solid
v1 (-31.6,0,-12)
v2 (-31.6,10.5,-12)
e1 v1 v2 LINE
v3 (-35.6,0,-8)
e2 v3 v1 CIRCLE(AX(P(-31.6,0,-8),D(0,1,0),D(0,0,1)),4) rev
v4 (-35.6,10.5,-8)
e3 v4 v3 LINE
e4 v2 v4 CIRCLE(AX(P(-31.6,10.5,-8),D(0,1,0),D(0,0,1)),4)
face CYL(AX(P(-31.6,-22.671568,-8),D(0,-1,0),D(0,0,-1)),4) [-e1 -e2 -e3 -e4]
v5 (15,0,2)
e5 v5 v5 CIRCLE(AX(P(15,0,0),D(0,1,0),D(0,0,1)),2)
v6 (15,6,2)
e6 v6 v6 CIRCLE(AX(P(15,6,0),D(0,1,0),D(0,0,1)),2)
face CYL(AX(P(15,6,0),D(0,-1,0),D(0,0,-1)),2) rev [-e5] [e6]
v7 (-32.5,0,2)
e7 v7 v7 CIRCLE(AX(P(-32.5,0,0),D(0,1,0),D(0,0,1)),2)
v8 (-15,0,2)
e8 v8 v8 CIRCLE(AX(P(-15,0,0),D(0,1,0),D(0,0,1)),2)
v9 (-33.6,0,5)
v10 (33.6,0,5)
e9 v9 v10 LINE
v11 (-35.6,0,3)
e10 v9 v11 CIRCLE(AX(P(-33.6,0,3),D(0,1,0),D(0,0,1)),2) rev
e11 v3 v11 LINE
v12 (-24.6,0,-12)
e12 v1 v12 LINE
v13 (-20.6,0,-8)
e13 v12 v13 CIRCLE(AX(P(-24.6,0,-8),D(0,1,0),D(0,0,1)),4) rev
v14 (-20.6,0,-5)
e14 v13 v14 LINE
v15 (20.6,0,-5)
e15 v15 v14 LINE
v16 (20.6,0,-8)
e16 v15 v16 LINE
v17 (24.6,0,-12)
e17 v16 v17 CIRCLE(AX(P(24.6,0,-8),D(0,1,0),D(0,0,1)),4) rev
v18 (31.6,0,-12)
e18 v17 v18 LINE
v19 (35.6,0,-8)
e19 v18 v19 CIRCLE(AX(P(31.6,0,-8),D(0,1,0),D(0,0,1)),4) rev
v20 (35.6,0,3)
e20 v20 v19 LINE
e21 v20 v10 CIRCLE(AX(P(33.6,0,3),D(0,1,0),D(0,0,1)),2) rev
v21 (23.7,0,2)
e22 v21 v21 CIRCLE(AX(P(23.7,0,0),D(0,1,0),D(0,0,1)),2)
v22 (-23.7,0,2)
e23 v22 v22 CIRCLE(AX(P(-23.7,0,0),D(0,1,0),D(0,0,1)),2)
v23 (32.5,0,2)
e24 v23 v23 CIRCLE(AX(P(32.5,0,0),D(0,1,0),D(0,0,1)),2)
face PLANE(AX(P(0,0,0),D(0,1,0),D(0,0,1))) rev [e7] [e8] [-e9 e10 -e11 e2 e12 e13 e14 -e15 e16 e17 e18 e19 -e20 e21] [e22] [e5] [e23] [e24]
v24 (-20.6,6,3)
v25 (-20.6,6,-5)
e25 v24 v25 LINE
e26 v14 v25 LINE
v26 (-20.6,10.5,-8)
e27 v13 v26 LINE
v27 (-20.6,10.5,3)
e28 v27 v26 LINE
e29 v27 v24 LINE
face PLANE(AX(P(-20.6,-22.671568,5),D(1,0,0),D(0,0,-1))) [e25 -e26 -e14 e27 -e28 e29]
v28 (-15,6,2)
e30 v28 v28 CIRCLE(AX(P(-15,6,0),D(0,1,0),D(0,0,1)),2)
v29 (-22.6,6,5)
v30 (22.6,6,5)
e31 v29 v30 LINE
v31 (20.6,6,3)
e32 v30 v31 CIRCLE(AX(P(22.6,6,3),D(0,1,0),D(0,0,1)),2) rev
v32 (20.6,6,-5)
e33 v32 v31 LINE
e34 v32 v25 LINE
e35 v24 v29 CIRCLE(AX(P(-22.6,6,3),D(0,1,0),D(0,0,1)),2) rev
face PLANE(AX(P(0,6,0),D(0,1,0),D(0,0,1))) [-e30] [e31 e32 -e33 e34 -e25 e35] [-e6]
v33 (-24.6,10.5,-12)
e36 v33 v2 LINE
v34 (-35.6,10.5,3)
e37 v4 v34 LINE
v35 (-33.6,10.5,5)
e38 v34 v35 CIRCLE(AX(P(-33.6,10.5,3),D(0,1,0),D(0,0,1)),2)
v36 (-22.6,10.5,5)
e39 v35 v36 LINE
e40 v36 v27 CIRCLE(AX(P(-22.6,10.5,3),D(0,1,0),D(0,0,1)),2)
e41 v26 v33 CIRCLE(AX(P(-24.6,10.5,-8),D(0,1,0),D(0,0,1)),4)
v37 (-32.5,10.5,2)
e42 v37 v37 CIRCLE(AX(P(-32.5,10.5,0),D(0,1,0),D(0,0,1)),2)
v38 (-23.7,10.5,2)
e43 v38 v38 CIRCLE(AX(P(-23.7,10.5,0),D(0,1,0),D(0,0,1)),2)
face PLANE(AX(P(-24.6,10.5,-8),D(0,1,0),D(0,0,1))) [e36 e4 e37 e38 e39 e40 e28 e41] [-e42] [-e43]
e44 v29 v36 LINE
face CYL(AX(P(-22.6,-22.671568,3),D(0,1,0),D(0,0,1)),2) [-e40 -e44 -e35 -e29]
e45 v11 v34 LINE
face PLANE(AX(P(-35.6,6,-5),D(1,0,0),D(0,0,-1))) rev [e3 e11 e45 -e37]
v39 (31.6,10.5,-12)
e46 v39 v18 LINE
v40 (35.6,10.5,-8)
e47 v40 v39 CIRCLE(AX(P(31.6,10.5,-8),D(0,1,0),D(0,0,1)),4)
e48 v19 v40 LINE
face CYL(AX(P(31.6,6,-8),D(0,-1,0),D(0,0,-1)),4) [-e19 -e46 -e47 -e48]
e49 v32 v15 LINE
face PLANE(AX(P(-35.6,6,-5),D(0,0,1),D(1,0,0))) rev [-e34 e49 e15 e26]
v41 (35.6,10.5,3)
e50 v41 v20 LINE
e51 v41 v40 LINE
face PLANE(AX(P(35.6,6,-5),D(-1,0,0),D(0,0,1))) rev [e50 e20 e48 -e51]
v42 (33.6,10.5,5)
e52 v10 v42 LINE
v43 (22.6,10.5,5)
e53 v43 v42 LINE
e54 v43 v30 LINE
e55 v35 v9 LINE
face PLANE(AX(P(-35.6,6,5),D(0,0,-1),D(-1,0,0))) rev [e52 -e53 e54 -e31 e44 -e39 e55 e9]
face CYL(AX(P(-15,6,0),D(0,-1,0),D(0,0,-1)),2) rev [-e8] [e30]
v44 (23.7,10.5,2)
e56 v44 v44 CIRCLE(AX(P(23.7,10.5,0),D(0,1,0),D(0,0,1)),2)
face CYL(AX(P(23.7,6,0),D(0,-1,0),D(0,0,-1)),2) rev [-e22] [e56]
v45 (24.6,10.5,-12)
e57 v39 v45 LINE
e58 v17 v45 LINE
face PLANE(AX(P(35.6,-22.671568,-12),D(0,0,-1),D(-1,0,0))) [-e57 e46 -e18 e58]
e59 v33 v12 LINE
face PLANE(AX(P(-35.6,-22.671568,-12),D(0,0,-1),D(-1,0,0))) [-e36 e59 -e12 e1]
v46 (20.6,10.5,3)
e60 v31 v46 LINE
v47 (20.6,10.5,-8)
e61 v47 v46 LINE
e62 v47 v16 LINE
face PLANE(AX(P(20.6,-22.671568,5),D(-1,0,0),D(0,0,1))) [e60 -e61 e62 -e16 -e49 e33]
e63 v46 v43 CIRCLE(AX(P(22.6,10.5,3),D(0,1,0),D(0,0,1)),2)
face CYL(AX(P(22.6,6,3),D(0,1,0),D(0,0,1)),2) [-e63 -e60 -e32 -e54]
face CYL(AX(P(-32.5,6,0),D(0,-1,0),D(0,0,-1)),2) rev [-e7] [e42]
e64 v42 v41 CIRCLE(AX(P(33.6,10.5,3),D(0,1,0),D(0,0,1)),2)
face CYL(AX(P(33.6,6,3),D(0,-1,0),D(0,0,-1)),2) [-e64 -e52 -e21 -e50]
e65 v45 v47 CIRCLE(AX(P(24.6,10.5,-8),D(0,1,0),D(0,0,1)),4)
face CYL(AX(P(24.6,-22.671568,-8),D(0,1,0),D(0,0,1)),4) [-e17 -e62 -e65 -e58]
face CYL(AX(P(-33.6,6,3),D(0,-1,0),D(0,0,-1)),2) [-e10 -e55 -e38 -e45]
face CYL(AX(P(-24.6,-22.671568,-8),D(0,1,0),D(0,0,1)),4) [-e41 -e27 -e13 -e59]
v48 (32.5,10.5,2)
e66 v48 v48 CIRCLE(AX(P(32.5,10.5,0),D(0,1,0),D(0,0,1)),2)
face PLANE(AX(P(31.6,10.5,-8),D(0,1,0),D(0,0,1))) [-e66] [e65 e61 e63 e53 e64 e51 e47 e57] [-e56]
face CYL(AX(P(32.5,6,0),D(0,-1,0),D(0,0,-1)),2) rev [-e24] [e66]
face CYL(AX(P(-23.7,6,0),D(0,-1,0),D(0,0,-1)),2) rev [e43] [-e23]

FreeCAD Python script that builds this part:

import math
import FreeCAD as App
import Part
import Sketcher

V = App.Vector


def edges_at(feature, points):
    """Names of the edges that pass closest to the given points."""
    edges = feature.Shape.Edges
    near = lambda p: min(range(len(edges)), key=lambda i: edges[i].distToShape(Part.Vertex(*p))[0])
    return sorted({f"Edge{near(p) + 1}" for p in points})

doc = App.newDocument("Part")
body = doc.addObject("PartDesign::Body", "Body")

sketch1 = body.newObject("Sketcher::SketchObject", "Sketch")
sketch1.AttachmentSupport = (doc.getObject("XZ_Plane"), [""])
sketch1.MapMode = "FlatFace"
sketch1.addGeometry(Part.LineSegment(V(-35.6, -5, 0), V(-35.6, 5, 0)), False)
sketch1.addGeometry(Part.LineSegment(V(-35.6, 5, 0), V(35.6, 5, 0)), False)
sketch1.addGeometry(Part.LineSegment(V(35.6, 5, 0), V(35.6, -5, 0)), False)
sketch1.addGeometry(Part.LineSegment(V(35.6, -5, 0), V(-35.6, -5, 0)), False)
sketch1.addGeometry(Part.Circle(V(-32.5, 0, 0), V(0, 0, 1), 2), False)
sketch1.addGeometry(Part.Circle(V(-23.7, 0, 0), V(0, 0, 1), 2), False)
sketch1.addGeometry(Part.Circle(V(-15, 0, 0), V(0, 0, 1), 2), False)
sketch1.addGeometry(Part.Circle(V(15, 0, 0), V(0, 0, 1), 2), False)
sketch1.addGeometry(Part.Circle(V(23.7, 0, 0), V(0, 0, 1), 2), False)
sketch1.addGeometry(Part.Circle(V(32.5, 0, 0), V(0, 0, 1), 2), False)
sketch1.addConstraint(Sketcher.Constraint("Coincident", 0, 2, 1, 1))
sketch1.addConstraint(Sketcher.Constraint("Coincident", 1, 2, 2, 1))
sketch1.addConstraint(Sketcher.Constraint("Coincident", 2, 2, 3, 1))
sketch1.addConstraint(Sketcher.Constraint("Coincident", 3, 2, 0, 1))
sketch1.addConstraint(Sketcher.Constraint("Vertical", 0))
sketch1.addConstraint(Sketcher.Constraint("Horizontal", 1))
sketch1.addConstraint(Sketcher.Constraint("Vertical", 2))
sketch1.addConstraint(Sketcher.Constraint("Horizontal", 3))
sketch1.addConstraint(Sketcher.Constraint("Equal", 4, 5))
sketch1.addConstraint(Sketcher.Constraint("Equal", 5, 6))
sketch1.addConstraint(Sketcher.Constraint("Equal", 6, 7))
sketch1.addConstraint(Sketcher.Constraint("Equal", 7, 8))
sketch1.addConstraint(Sketcher.Constraint("Equal", 8, 9))
sketch1.addConstraint(Sketcher.Constraint("Symmetric", 6, 3, 7, 3, -1, 1))
sketch1.addConstraint(Sketcher.Constraint("Symmetric", 5, 3, 8, 3, -1, 1))
sketch1.addConstraint(Sketcher.Constraint("Symmetric", 4, 3, 9, 3, -1, 1))
sketch1.addConstraint(Sketcher.Constraint("Symmetric", 0, 2, 2, 2, -1, 1))
sketch1.addConstraint(Sketcher.Constraint("PointOnObject", 4, 3, -1))
sketch1.addConstraint(Sketcher.Constraint("PointOnObject", 5, 3, -1))
sketch1.addConstraint(Sketcher.Constraint("PointOnObject", 6, 3, -1))
sketch1.addConstraint(Sketcher.Constraint("Diameter", 4, 4.0))
sketch1.addConstraint(Sketcher.Constraint("DistanceY", 0, 1, 0, 2, 10.0))
sketch1.addConstraint(Sketcher.Constraint("DistanceX", 1, 1, 1, 2, 71.2))
sketch1.addConstraint(Sketcher.Constraint("DistanceX", 6, 3, -1, 1, 15.0))
sketch1.addConstraint(Sketcher.Constraint("DistanceX", 4, 3, 9, 3, 65.0))
sketch1.addConstraint(Sketcher.Constraint("DistanceX", 5, 3, -1, 1, 23.7))
pad1 = body.newObject("PartDesign::Pad", "Pad")
pad1.Profile = sketch1
pad1.Length = 6
pad1.Reversed = True

sketch2 = body.newObject("Sketcher::SketchObject", "Sketch001")
sketch2.AttachmentSupport = (doc.getObject("XZ_Plane"), [""])
sketch2.MapMode = "FlatFace"
sketch2.addGeometry(Part.LineSegment(V(-35.6, -12, 0), V(-35.6, 5, 0)), False)
sketch2.addGeometry(Part.LineSegment(V(-35.6, 5, 0), V(-20.6, 5, 0)), False)
sketch2.addGeometry(Part.LineSegment(V(-20.6, 5, 0), V(-20.6, -12, 0)), False)
sketch2.addGeometry(Part.LineSegment(V(-20.6, -12, 0), V(-35.6, -12, 0)), False)
sketch2.addGeometry(Part.Circle(V(-32.5, 0, 0), V(0, 0, 1), 2), False)
sketch2.addGeometry(Part.Circle(V(-23.7, 0, 0), V(0, 0, 1), 2), False)
sketch2.addGeometry(Part.LineSegment(V(20.6, -12, 0), V(20.6, 5, 0)), False)
sketch2.addGeometry(Part.LineSegment(V(20.6, 5, 0), V(35.6, 5, 0)), False)
sketch2.addGeometry(Part.LineSegment(V(35.6, 5, 0), V(35.6, -12, 0)), False)
sketch2.addGeometry(Part.LineSegment(V(35.6, -12, 0), V(20.6, -12, 0)), False)
sketch2.addGeometry(Part.Circle(V(23.7, 0, 0), V(0, 0, 1), 2), False)
sketch2.addGeometry(Part.Circle(V(32.5, 0, 0), V(0, 0, 1), 2), False)
sketch2.addConstraint(Sketcher.Constraint("Coincident", 0, 2, 1, 1))
sketch2.addConstraint(Sketcher.Constraint("Coincident", 1, 2, 2, 1))
sketch2.addConstraint(Sketcher.Constraint("Coincident", 2, 2, 3, 1))
sketch2.addConstraint(Sketcher.Constraint("Coincident", 3, 2, 0, 1))
sketch2.addConstraint(Sketcher.Constraint("Coincident", 6, 2, 7, 1))
sketch2.addConstraint(Sketcher.Constraint("Coincident", 7, 2, 8, 1))
sketch2.addConstraint(Sketcher.Constraint("Coincident", 8, 2, 9, 1))
sketch2.addConstraint(Sketcher.Constraint("Coincident", 9, 2, 6, 1))
sketch2.addConstraint(Sketcher.Constraint("Vertical", 0))
sketch2.addConstraint(Sketcher.Constraint("Horizontal", 1))
sketch2.addConstraint(Sketcher.Constraint("Vertical", 2))
sketch2.addConstraint(Sketcher.Constraint("Horizontal", 3))
sketch2.addConstraint(Sketcher.Constraint("Vertical", 6))
sketch2.addConstraint(Sketcher.Constraint("Horizontal", 7))
sketch2.addConstraint(Sketcher.Constraint("Vertical", 8))
sketch2.addConstraint(Sketcher.Constraint("Horizontal", 9))
sketch2.addConstraint(Sketcher.Constraint("Equal", 4, 5))
sketch2.addConstraint(Sketcher.Constraint("Equal", 5, 10))
sketch2.addConstraint(Sketcher.Constraint("Equal", 10, 11))
sketch2.addConstraint(Sketcher.Constraint("Symmetric", 5, 3, 10, 3, -1, 1))
sketch2.addConstraint(Sketcher.Constraint("Symmetric", 4, 3, 11, 3, -1, 1))
sketch2.addConstraint(Sketcher.Constraint("Symmetric", 1, 2, 6, 2, -2))
sketch2.addConstraint(Sketcher.Constraint("Symmetric", 3, 2, 8, 2, -2))
sketch2.addConstraint(Sketcher.Constraint("PointOnObject", 4, 3, -1))
sketch2.addConstraint(Sketcher.Constraint("PointOnObject", 5, 3, -1))
sketch2.addConstraint(Sketcher.Constraint("Diameter", 4, 4.0))
sketch2.addConstraint(Sketcher.Constraint("DistanceX", 1, 1, 1, 2, 15.0))
sketch2.addConstraint(Sketcher.Constraint("DistanceY", 0, 1, 0, 2, 17.0))
sketch2.addConstraint(Sketcher.Constraint("DistanceY", -1, 1, 0, 2, 5.0))
sketch2.addConstraint(Sketcher.Constraint("DistanceX", 4, 3, 11, 3, 65.0))
sketch2.addConstraint(Sketcher.Constraint("DistanceX", 5, 3, -1, 1, 23.7))
sketch2.addConstraint(Sketcher.Constraint("DistanceX", 0, 2, -1, 1, 35.6))
pad2 = body.newObject("PartDesign::Pad", "Pad001")
pad2.Profile = sketch2
pad2.Length = 6
pad2.Reversed = True
doc.recompute()

fillet = body.newObject("PartDesign::Fillet", "Fillet")
fillet.Base = (pad2, edges_at(pad2, [
    (-20.6, 3, -12),
    (-35.6, 3, -12),
    (35.6, 3, -12),
    (20.6, 3, -12),
]))
fillet.Radius = 4

sketch3 = body.newObject("Sketcher::SketchObject", "Sketch002")
sketch3.AttachmentSupport = (doc.getObject("XZ_Plane"), [""])
sketch3.MapMode = "FlatFace"
sketch3.AttachmentOffset = App.Placement(V(0, 0, -6), App.Rotation())
sketch3.addGeometry(Part.LineSegment(V(31.6, -12, 0), V(24.6, -12, 0)), False)
sketch3.addGeometry(Part.ArcOfCircle(Part.Circle(V(24.6, -8, 0), V(0, 0, 1), 4), math.radians(180), math.radians(270)), False)
sketch3.addGeometry(Part.LineSegment(V(20.6, -8, 0), V(20.6, 5, 0)), False)
sketch3.addGeometry(Part.LineSegment(V(20.6, 5, 0), V(35.6, 5, 0)), False)
sketch3.addGeometry(Part.LineSegment(V(35.6, 5, 0), V(35.6, -8, 0)), False)
sketch3.addGeometry(Part.ArcOfCircle(Part.Circle(V(31.6, -8, 0), V(0, 0, 1), 4), math.radians(-90), math.radians(0)), False)
sketch3.addGeometry(Part.Circle(V(23.7, 0, 0), V(0, 0, 1), 2), False)
sketch3.addGeometry(Part.Circle(V(32.5, 0, 0), V(0, 0, 1), 2), False)
sketch3.addGeometry(Part.LineSegment(V(-24.6, -12, 0), V(-31.6, -12, 0)), False)
sketch3.addGeometry(Part.ArcOfCircle(Part.Circle(V(-31.6, -8, 0), V(0, 0, 1), 4), math.radians(180), math.radians(270)), False)
sketch3.addGeometry(Part.LineSegment(V(-35.6, -8, 0), V(-35.6, 5, 0)), False)
sketch3.addGeometry(Part.LineSegment(V(-35.6, 5, 0), V(-20.6, 5, 0)), False)
sketch3.addGeometry(Part.LineSegment(V(-20.6, 5, 0), V(-20.6, -8, 0)), False)
sketch3.addGeometry(Part.ArcOfCircle(Part.Circle(V(-24.6, -8, 0), V(0, 0, 1), 4), math.radians(-90), math.radians(0)), False)
sketch3.addGeometry(Part.Circle(V(-32.5, 0, 0), V(0, 0, 1), 2), False)
sketch3.addGeometry(Part.Circle(V(-23.7, 0, 0), V(0, 0, 1), 2), False)
sketch3.addConstraint(Sketcher.Constraint("Tangent", 0, 2, 1, 2))
sketch3.addConstraint(Sketcher.Constraint("Tangent", 1, 1, 2, 1))
sketch3.addConstraint(Sketcher.Constraint("Coincident", 2, 2, 3, 1))
sketch3.addConstraint(Sketcher.Constraint("Coincident", 3, 2, 4, 1))
sketch3.addConstraint(Sketcher.Constraint("Tangent", 4, 2, 5, 2))
sketch3.addConstraint(Sketcher.Constraint("Tangent", 5, 1, 0, 1))
sketch3.addConstraint(Sketcher.Constraint("Tangent", 8, 2, 9, 2))
sketch3.addConstraint(Sketcher.Constraint("Tangent", 9, 1, 10, 1))
sketch3.addConstraint(Sketcher.Constraint("Coincident", 10, 2, 11, 1))
sketch3.addConstraint(Sketcher.Constraint("Coincident", 11, 2, 12, 1))
sketch3.addConstraint(Sketcher.Constraint("Tangent", 12, 2, 13, 2))
sketch3.addConstraint(Sketcher.Constraint("Tangent", 13, 1, 8, 1))
sketch3.addConstraint(Sketcher.Constraint("Horizontal", 0))
sketch3.addConstraint(Sketcher.Constraint("Vertical", 2))
sketch3.addConstraint(Sketcher.Constraint("Horizontal", 3))
sketch3.addConstraint(Sketcher.Constraint("Vertical", 4))
sketch3.addConstraint(Sketcher.Constraint("Horizontal", 8))
sketch3.addConstraint(Sketcher.Constraint("Vertical", 10))
sketch3.addConstraint(Sketcher.Constraint("Horizontal", 11))
sketch3.addConstraint(Sketcher.Constraint("Vertical", 12))
sketch3.addConstraint(Sketcher.Constraint("Equal", 1, 5))
sketch3.addConstraint(Sketcher.Constraint("Equal", 6, 7))
sketch3.addConstraint(Sketcher.Constraint("Equal", 5, 9))
sketch3.addConstraint(Sketcher.Constraint("Equal", 9, 13))
sketch3.addConstraint(Sketcher.Constraint("Equal", 7, 14))
sketch3.addConstraint(Sketcher.Constraint("Equal", 14, 15))
sketch3.addConstraint(Sketcher.Constraint("Symmetric", 7, 3, 14, 3, -1, 1))
sketch3.addConstraint(Sketcher.Constraint("Symmetric", 6, 3, 15, 3, -1, 1))
sketch3.addConstraint(Sketcher.Constraint("Symmetric", 5, 3, 9, 3, -2))
sketch3.addConstraint(Sketcher.Constraint("Symmetric", 2, 2, 11, 2, -2))
sketch3.addConstraint(Sketcher.Constraint("PointOnObject", 6, 3, -1))
sketch3.addConstraint(Sketcher.Constraint("PointOnObject", 7, 3, -1))
sketch3.addConstraint(Sketcher.Constraint("Diameter", 6, 4.0))
sketch3.addConstraint(Sketcher.Constraint("Radius", 1, 4.0))
sketch3.addConstraint(Sketcher.Constraint("DistanceX", 0, 2, 0, 1, 7.0))
sketch3.addConstraint(Sketcher.Constraint("DistanceY", 2, 1, 2, 2, 13.0))
sketch3.addConstraint(Sketcher.Constraint("DistanceY", 1, 3, -1, 1, 8.0))
sketch3.addConstraint(Sketcher.Constraint("DistanceX", -1, 1, 1, 3, 24.6))
sketch3.addConstraint(Sketcher.Constraint("DistanceX", -1, 1, 6, 3, 23.7))
sketch3.addConstraint(Sketcher.Constraint("DistanceX", -1, 1, 7, 3, 32.5))
pad3 = body.newObject("PartDesign::Pad", "Pad002")
pad3.Profile = sketch3
pad3.Length = 4.5
pad3.Reversed = True
doc.recompute()

fillet2 = body.newObject("PartDesign::Fillet", "Fillet001")
fillet2.Base = (pad3, edges_at(pad3, [
    (20.6, 8.25, 5),
    (-20.6, 8.25, 5),
    (35.6, 5.25, 5),
    (-35.6, 5.25, 5),
]))
fillet2.Radius = 2

doc.recompute()
